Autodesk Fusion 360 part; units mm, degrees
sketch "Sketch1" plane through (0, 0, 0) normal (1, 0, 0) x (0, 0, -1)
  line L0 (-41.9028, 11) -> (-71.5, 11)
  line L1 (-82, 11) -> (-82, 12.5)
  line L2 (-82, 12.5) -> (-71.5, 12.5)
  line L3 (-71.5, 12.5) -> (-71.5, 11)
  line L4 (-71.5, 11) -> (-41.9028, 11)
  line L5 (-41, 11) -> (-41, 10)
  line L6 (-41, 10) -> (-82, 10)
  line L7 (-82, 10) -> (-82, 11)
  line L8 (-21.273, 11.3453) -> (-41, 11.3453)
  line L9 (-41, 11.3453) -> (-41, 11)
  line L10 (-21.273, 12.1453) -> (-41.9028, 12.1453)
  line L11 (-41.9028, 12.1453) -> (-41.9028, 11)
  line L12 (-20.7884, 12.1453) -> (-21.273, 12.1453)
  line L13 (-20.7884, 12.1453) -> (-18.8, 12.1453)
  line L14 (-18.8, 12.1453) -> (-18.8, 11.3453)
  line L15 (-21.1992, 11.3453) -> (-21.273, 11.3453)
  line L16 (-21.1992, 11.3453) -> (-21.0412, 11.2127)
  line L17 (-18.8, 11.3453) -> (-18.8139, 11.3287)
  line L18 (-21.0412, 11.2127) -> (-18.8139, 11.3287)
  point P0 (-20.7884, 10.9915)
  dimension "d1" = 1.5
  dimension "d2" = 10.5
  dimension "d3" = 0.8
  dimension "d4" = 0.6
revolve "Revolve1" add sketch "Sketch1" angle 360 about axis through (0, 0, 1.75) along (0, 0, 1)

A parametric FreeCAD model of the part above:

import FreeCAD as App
import Part
import Sketcher
Q = App.Units.Quantity


def add_polygon(sketch, points):
    """Adds a closed chain of lines whose ends are joined by coincident constraints."""
    first, n = sketch.GeometryCount, len(points)
    for a, b in zip(points, points[1:] + points[:1]):
        sketch.addGeometry(Part.LineSegment(App.Vector(*a, 0), App.Vector(*b, 0)), False)
    for i in range(n):
        sketch.addConstraint(Sketcher.Constraint("Coincident", first + i, 2, first + (i + 1) % n, 1))

doc = App.newDocument("Part")
body = doc.addObject("PartDesign::Body", "Body")

sketch1 = body.newObject("Sketcher::SketchObject", "Sketch")
sketch1.AttachmentSupport = (doc.getObject("YZ_Plane"), [""])
sketch1.MapMode = "FlatFace"
add_polygon(sketch1, [(12.145, 41.903), (11, 41.903), (11, 71.5), (12.5, 71.5), (12.5, 82), (10, 82), (10, 41), (11.345, 41), (11.345, 21.199), (11.213, 21.041), (11.329, 18.814), (11.345, 18.8), (12.145, 18.8)])
sketch1.addConstraint([
    Sketcher.Constraint("Horizontal", 0),
    Sketcher.Constraint("Vertical", 1),
    Sketcher.Constraint("Horizontal", 2),
    Sketcher.Constraint("Vertical", 3),
    Sketcher.Constraint("Horizontal", 4),
    Sketcher.Constraint("Vertical", 5),
    Sketcher.Constraint("Horizontal", 6),
    Sketcher.Constraint("Vertical", 7),
    Sketcher.Constraint("Horizontal", 11),
    Sketcher.Constraint("Vertical", 12),
    Sketcher.Constraint("Vertical", 7, 2, 10, 2),
    Sketcher.Constraint("DistanceX", 2, 1, 2, 2, 1.5),
    Sketcher.Constraint("DistanceX", 11, 1, 11, 2, 0.8),
    Sketcher.Constraint("DistanceY", 3, 1, 3, 2, 10.5),
    Sketcher.Constraint("DistanceY", 5, 2, 5, 1, 41.0),
    Sketcher.Constraint("DistanceX", 4, 2, 4, 1, 2.5),
    Sketcher.Constraint("DistanceX", -1, 1, 0, 2, 11.0),
    Sketcher.Constraint("DistanceY", -1, 1, 3, 2, 82.0),
    Sketcher.Constraint("DistanceY", -1, 1, 10, 2, 18.8),
    Sketcher.Constraint("Angle", 10, Q("-39.941 deg")),
    Sketcher.Constraint("DistanceX", 0, 2, 0, 1, 1.1453),
    Sketcher.Constraint("DistanceY", 1, 1, 1, 2, 29.5972),
    Sketcher.Constraint("DistanceY", 7, 2, 7, 1, 19.8008),
    Sketcher.Constraint("DistanceY", -1, 1, 9, 2, 18.814),
    Sketcher.Constraint("DistanceY", 8, 2, 7, 2, 0.158),
    Sketcher.Constraint("DistanceX", 8, 2, 9, 2, 0.116),
])
revolution = body.newObject("PartDesign::Revolution", "Revolution")
revolution.Profile = sketch1
revolution.ReferenceAxis = (sketch1, ["V_Axis"])
revolution.Angle = 360

doc.recompute()
